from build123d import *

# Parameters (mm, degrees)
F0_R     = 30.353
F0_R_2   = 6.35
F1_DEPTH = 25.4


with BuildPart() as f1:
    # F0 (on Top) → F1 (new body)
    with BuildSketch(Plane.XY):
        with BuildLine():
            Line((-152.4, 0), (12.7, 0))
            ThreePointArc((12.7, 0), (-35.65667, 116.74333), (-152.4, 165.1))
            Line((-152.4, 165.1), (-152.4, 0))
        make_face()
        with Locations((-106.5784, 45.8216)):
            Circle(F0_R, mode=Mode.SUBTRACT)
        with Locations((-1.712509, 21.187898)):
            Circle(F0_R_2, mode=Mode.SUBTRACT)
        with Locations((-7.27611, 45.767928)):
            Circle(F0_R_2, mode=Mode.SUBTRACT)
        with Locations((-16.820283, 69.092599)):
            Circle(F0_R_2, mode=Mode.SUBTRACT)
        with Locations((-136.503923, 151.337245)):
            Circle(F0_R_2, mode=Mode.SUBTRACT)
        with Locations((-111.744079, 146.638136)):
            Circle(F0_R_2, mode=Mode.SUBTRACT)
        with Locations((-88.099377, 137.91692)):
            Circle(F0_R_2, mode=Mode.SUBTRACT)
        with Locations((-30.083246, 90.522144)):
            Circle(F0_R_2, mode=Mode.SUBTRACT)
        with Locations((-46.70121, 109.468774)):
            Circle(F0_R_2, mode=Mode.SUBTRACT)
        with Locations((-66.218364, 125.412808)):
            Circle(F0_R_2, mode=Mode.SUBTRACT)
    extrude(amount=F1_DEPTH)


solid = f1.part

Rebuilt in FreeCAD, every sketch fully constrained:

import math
import FreeCAD as App
import Part
import Sketcher
Q = App.Units.Quantity

doc = App.newDocument("Part")
params = doc.addObject("Spreadsheet::Sheet", "Params")
for row, (alias, value) in enumerate([
    ("sketch1_diameter", "0.5 in"),
    ("sketch1_radius", "6.4999999 in"),
    ("sketch1_diameter2", "2.39 in"),
    ("pad1_length", "1 in"),
], start=1):
    params.set(f"A{row}", alias)
    params.set(f"B{row}", "=" + value)
    params.setAlias(f"B{row}", alias)

body = doc.addObject("PartDesign::Body", "Body")

sketch1 = body.newObject("Sketcher::SketchObject", "Sketch")
sketch1.AttachmentSupport = (doc.getObject("XY_Plane"), [""])
sketch1.MapMode = "FlatFace"
sketch1.addGeometry(Part.LineSegment(App.Vector(-152, 0, 0), App.Vector(13, 0, 0)), False)
sketch1.addGeometry(Part.ArcOfCircle(Part.Circle(App.Vector(-152, 0, 0), App.Vector(0, 0, 1), 165), math.radians(0), math.radians(90)), False)
sketch1.addGeometry(Part.LineSegment(App.Vector(-152, 165, 0), App.Vector(-152, 0, 0)), False)
sketch1.addGeometry(Part.Circle(App.Vector(-107, 46, 0), App.Vector(0, 0, 1), 30), False)
sketch1.addGeometry(Part.Circle(App.Vector(-2, 21, 0), App.Vector(0, 0, 1), 6), False)
sketch1.addGeometry(Part.Circle(App.Vector(-7, 46, 0), App.Vector(0, 0, 1), 6), False)
sketch1.addGeometry(Part.Circle(App.Vector(-17, 69, 0), App.Vector(0, 0, 1), 6), False)
sketch1.addGeometry(Part.Circle(App.Vector(-137, 151, 0), App.Vector(0, 0, 1), 6), False)
sketch1.addGeometry(Part.Circle(App.Vector(-112, 147, 0), App.Vector(0, 0, 1), 6), False)
sketch1.addGeometry(Part.Circle(App.Vector(-88, 138, 0), App.Vector(0, 0, 1), 6), False)
sketch1.addGeometry(Part.Circle(App.Vector(-47, 109, 0), App.Vector(0, 0, 1), 6), False)
sketch1.addGeometry(Part.Circle(App.Vector(-30, 91, 0), App.Vector(0, 0, 1), 6), False)
sketch1.addGeometry(Part.Circle(App.Vector(-66, 125, 0), App.Vector(0, 0, 1), 6), False)
sketch1.addConstraint(Sketcher.Constraint("Coincident", 0, 2, 1, 1))
sketch1.addConstraint(Sketcher.Constraint("Coincident", 1, 2, 2, 1))
sketch1.addConstraint(Sketcher.Constraint("Coincident", 2, 2, 0, 1))
sketch1.addConstraint(Sketcher.Constraint("Horizontal", 0))
sketch1.addConstraint(Sketcher.Constraint("Vertical", 2))
sketch1.addConstraint(Sketcher.Constraint("Coincident", 2, 2, 1, 3))
sketch1.addConstraint(Sketcher.Constraint("Equal", 4, 5))
sketch1.addConstraint(Sketcher.Constraint("Equal", 5, 6))
sketch1.addConstraint(Sketcher.Constraint("Equal", 6, 7))
sketch1.addConstraint(Sketcher.Constraint("Equal", 7, 8))
sketch1.addConstraint(Sketcher.Constraint("Equal", 8, 9))
sketch1.addConstraint(Sketcher.Constraint("Equal", 9, 10))
sketch1.addConstraint(Sketcher.Constraint("Equal", 10, 11))
sketch1.addConstraint(Sketcher.Constraint("Equal", 11, 12))
sketch1.addConstraint(Sketcher.Constraint("PointOnObject", 1, 3, -1))
sketch1.addConstraint(Sketcher.Constraint("Diameter", 4, Q("0.5 in")))
sketch1.addConstraint(Sketcher.Constraint("Radius", 1, Q("6.4999999 in")))
sketch1.addConstraint(Sketcher.Constraint("Diameter", 3, Q("2.39 in")))
sketch1.addConstraint(Sketcher.Constraint("DistanceX", 1, 3, -1, 1, Q("5.9999999 in")))
sketch1.addConstraint(Sketcher.Constraint("DistanceX", 3, 3, -1, 1, Q("4.196 in")))
sketch1.addConstraint(Sketcher.Constraint("DistanceY", -1, 1, 3, 3, Q("1.804 in")))
sketch1.addConstraint(Sketcher.Constraint("DistanceY", -1, 1, 9, 3, Q("5.4298 in")))
sketch1.addConstraint(Sketcher.Constraint("DistanceY", -1, 1, 4, 3, Q("21.187898 mm")))
sketch1.addConstraint(Sketcher.Constraint("DistanceY", -1, 1, 6, 3, Q("69.092599 mm")))
sketch1.addConstraint(Sketcher.Constraint("DistanceX", 5, 3, 4, 3, Q("5.563601 mm")))
sketch1.addConstraint(Sketcher.Constraint("DistanceX", 8, 3, 9, 3, Q("23.644702 mm")))
sketch1.addConstraint(Sketcher.Constraint("DistanceX", 10, 3, 5, 3, Q("39.4251 mm")))
sketch1.addConstraint(Sketcher.Constraint("DistanceX", 4, 3, -1, 1, Q("1.712509 mm")))
sketch1.addConstraint(Sketcher.Constraint("DistanceX", 8, 3, -1, 1, Q("111.744079 mm")))
sketch1.addConstraint(Sketcher.Constraint("DistanceY", -1, 1, 12, 3, Q("125.412808 mm")))
sketch1.addConstraint(Sketcher.Constraint("DistanceY", 4, 3, 5, 3, Q("24.58003 mm")))
sketch1.addConstraint(Sketcher.Constraint("DistanceX", 7, 3, 6, 3, Q("119.68364 mm")))
sketch1.addConstraint(Sketcher.Constraint("DistanceY", 8, 3, 7, 3, Q("4.699109 mm")))
sketch1.addConstraint(Sketcher.Constraint("DistanceY", 5, 3, 8, 3, Q("100.870208 mm")))
sketch1.addConstraint(Sketcher.Constraint("DistanceY", 11, 3, 10, 3, Q("18.94663 mm")))
sketch1.addConstraint(Sketcher.Constraint("DistanceX", 9, 3, 11, 3, Q("58.016131 mm")))
sketch1.addConstraint(Sketcher.Constraint("DistanceX", 7, 3, 12, 3, Q("70.285559 mm")))
sketch1.addConstraint(Sketcher.Constraint("DistanceX", 6, 3, -1, 1, Q("16.820283 mm")))
sketch1.addConstraint(Sketcher.Constraint("DistanceY", -1, 1, 10, 3, Q("109.468774 mm")))
sketch1.setExpression("Constraints[15]", "Params.sketch1_diameter")
sketch1.setExpression("Constraints[16]", "Params.sketch1_radius")
sketch1.setExpression("Constraints[17]", "Params.sketch1_diameter2")
pad1 = body.newObject("PartDesign::Pad", "Pad")
pad1.Profile = sketch1
pad1.setExpression("Length", "Params.pad1_length")

doc.recompute()
